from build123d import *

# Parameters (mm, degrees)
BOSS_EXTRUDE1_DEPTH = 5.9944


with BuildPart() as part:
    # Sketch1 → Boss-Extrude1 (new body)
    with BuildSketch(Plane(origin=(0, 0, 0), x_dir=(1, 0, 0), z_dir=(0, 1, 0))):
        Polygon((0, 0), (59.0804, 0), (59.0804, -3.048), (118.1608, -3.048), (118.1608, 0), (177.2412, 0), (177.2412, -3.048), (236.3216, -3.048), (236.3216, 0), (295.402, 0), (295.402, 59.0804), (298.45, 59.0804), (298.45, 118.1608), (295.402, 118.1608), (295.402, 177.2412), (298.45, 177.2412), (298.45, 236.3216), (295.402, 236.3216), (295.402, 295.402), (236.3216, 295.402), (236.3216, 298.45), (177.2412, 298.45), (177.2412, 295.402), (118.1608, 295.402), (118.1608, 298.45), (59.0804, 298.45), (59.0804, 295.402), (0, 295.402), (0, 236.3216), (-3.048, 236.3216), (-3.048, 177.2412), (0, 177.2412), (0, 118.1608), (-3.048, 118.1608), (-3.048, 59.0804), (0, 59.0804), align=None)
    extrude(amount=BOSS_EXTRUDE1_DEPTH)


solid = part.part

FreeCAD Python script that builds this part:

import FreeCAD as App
import Part
import Sketcher
from FreeCAD import Vector
Q = App.Units.Quantity

doc = App.newDocument("Part")
body = doc.addObject("PartDesign::Body", "Body")

# Sketch on XZ plane
sketch1 = body.newObject("Sketcher::SketchObject", "Sketch")
sketch1.AttachmentSupport = (doc.getObject("XZ_Plane"), [""])
sketch1.MapMode = "FlatFace"
sketch1.addGeometry([
    Part.LineSegment(Vector(0, 0, 0), Vector(59.1, 0, 0)),  # 0
    Part.LineSegment(Vector(59.1, 0, 0), Vector(59.1, 3, 0)),  # 1
    Part.LineSegment(Vector(59.1, 3, 0), Vector(118.2, 3, 0)),  # 2
    Part.LineSegment(Vector(118.2, 3, 0), Vector(118.2, 0, 0)),  # 3
    Part.LineSegment(Vector(118.2, 0, 0), Vector(177.2, 0, 0)),  # 4
    Part.LineSegment(Vector(177.2, 0, 0), Vector(177.2, 3, 0)),  # 5
    Part.LineSegment(Vector(177.2, 3, 0), Vector(236.3, 3, 0)),  # 6
    Part.LineSegment(Vector(236.3, 3, 0), Vector(236.3, 0, 0)),  # 7
    Part.LineSegment(Vector(236.3, 0, 0), Vector(295.4, 0, 0)),  # 8
    Part.LineSegment(Vector(295.4, 0, 0), Vector(295.4, -59.1, 0)),  # 9
    Part.LineSegment(Vector(295.4, -59.1, 0), Vector(298.4, -59.1, 0)),  # 10
    Part.LineSegment(Vector(298.4, -59.1, 0), Vector(298.4, -118.2, 0)),  # 11
    Part.LineSegment(Vector(298.4, -118.2, 0), Vector(295.4, -118.2, 0)),  # 12
    Part.LineSegment(Vector(295.4, -118.2, 0), Vector(295.4, -177.2, 0)),  # 13
    Part.LineSegment(Vector(295.4, -177.2, 0), Vector(298.4, -177.2, 0)),  # 14
    Part.LineSegment(Vector(298.4, -177.2, 0), Vector(298.4, -236.3, 0)),  # 15
    Part.LineSegment(Vector(298.4, -236.3, 0), Vector(295.4, -236.3, 0)),  # 16
    Part.LineSegment(Vector(295.4, -236.3, 0), Vector(295.4, -295.4, 0)),  # 17
    Part.LineSegment(Vector(295.4, -295.4, 0), Vector(236.3, -295.4, 0)),  # 18
    Part.LineSegment(Vector(236.3, -295.4, 0), Vector(236.3, -298.4, 0)),  # 19
    Part.LineSegment(Vector(236.3, -298.4, 0), Vector(177.2, -298.4, 0)),  # 20
    Part.LineSegment(Vector(177.2, -298.4, 0), Vector(177.2, -295.4, 0)),  # 21
    Part.LineSegment(Vector(177.2, -295.4, 0), Vector(118.2, -295.4, 0)),  # 22
    Part.LineSegment(Vector(118.2, -295.4, 0), Vector(118.2, -298.4, 0)),  # 23
    Part.LineSegment(Vector(118.2, -298.4, 0), Vector(59.1, -298.4, 0)),  # 24
    Part.LineSegment(Vector(59.1, -298.4, 0), Vector(59.1, -295.4, 0)),  # 25
    Part.LineSegment(Vector(59.1, -295.4, 0), Vector(0, -295.4, 0)),  # 26
    Part.LineSegment(Vector(0, -295.4, 0), Vector(0, -236.3, 0)),  # 27
    Part.LineSegment(Vector(0, -236.3, 0), Vector(-3, -236.3, 0)),  # 28
    Part.LineSegment(Vector(-3, -236.3, 0), Vector(-3, -177.2, 0)),  # 29
    Part.LineSegment(Vector(-3, -177.2, 0), Vector(0, -177.2, 0)),  # 30
    Part.LineSegment(Vector(0, -177.2, 0), Vector(0, -118.2, 0)),  # 31
    Part.LineSegment(Vector(0, -118.2, 0), Vector(-3, -118.2, 0)),  # 32
    Part.LineSegment(Vector(-3, -118.2, 0), Vector(-3, -59.1, 0)),  # 33
    Part.LineSegment(Vector(-3, -59.1, 0), Vector(0, -59.1, 0)),  # 34
    Part.LineSegment(Vector(0, -59.1, 0), Vector(0, 0, 0)),  # 35
], False)
sketch1.addConstraint([
    Sketcher.Constraint("Coincident", 0, 2, 1, 1),
    Sketcher.Constraint("Coincident", 1, 2, 2, 1),
    Sketcher.Constraint("Coincident", 2, 2, 3, 1),
    Sketcher.Constraint("Coincident", 3, 2, 4, 1),
    Sketcher.Constraint("Coincident", 4, 2, 5, 1),
    Sketcher.Constraint("Coincident", 5, 2, 6, 1),
    Sketcher.Constraint("Coincident", 6, 2, 7, 1),
    Sketcher.Constraint("Coincident", 7, 2, 8, 1),
    Sketcher.Constraint("Coincident", 8, 2, 9, 1),
    Sketcher.Constraint("Coincident", 9, 2, 10, 1),
    Sketcher.Constraint("Coincident", 10, 2, 11, 1),
    Sketcher.Constraint("Coincident", 11, 2, 12, 1),
    Sketcher.Constraint("Coincident", 12, 2, 13, 1),
    Sketcher.Constraint("Coincident", 13, 2, 14, 1),
    Sketcher.Constraint("Coincident", 14, 2, 15, 1),
    Sketcher.Constraint("Coincident", 15, 2, 16, 1),
    Sketcher.Constraint("Coincident", 16, 2, 17, 1),
    Sketcher.Constraint("Coincident", 17, 2, 18, 1),
    Sketcher.Constraint("Coincident", 18, 2, 19, 1),
    Sketcher.Constraint("Coincident", 19, 2, 20, 1),
    Sketcher.Constraint("Coincident", 20, 2, 21, 1),
    Sketcher.Constraint("Coincident", 21, 2, 22, 1),
    Sketcher.Constraint("Coincident", 22, 2, 23, 1),
    Sketcher.Constraint("Coincident", 23, 2, 24, 1),
    Sketcher.Constraint("Coincident", 24, 2, 25, 1),
    Sketcher.Constraint("Coincident", 25, 2, 26, 1),
    Sketcher.Constraint("Coincident", 26, 2, 27, 1),
    Sketcher.Constraint("Coincident", 27, 2, 28, 1),
    Sketcher.Constraint("Coincident", 28, 2, 29, 1),
    Sketcher.Constraint("Coincident", 29, 2, 30, 1),
    Sketcher.Constraint("Coincident", 30, 2, 31, 1),
    Sketcher.Constraint("Coincident", 31, 2, 32, 1),
    Sketcher.Constraint("Coincident", 32, 2, 33, 1),
    Sketcher.Constraint("Coincident", 33, 2, 34, 1),
    Sketcher.Constraint("Coincident", 34, 2, 35, 1),
    Sketcher.Constraint("Coincident", 35, 2, 0, 1),
    Sketcher.Constraint("Horizontal", 0),
    Sketcher.Constraint("Vertical", 1),
    Sketcher.Constraint("Horizontal", 2),
    Sketcher.Constraint("Vertical", 3),
    Sketcher.Constraint("Horizontal", 4),
    Sketcher.Constraint("Vertical", 5),
    Sketcher.Constraint("Horizontal", 6),
    Sketcher.Constraint("Vertical", 7),
    Sketcher.Constraint("Horizontal", 8),
    Sketcher.Constraint("Vertical", 9),
    Sketcher.Constraint("Horizontal", 10),
    Sketcher.Constraint("Vertical", 11),
    Sketcher.Constraint("Horizontal", 12),
    Sketcher.Constraint("Vertical", 13),
    Sketcher.Constraint("Horizontal", 14),
    Sketcher.Constraint("Vertical", 15),
    Sketcher.Constraint("Horizontal", 16),
    Sketcher.Constraint("Vertical", 17),
    Sketcher.Constraint("Horizontal", 18),
    Sketcher.Constraint("Vertical", 19),
    Sketcher.Constraint("Horizontal", 20),
    Sketcher.Constraint("Vertical", 21),
    Sketcher.Constraint("Horizontal", 22),
    Sketcher.Constraint("Vertical", 23),
    Sketcher.Constraint("Horizontal", 24),
    Sketcher.Constraint("Vertical", 25),
    Sketcher.Constraint("Horizontal", 26),
    Sketcher.Constraint("Vertical", 27),
    Sketcher.Constraint("Horizontal", 28),
    Sketcher.Constraint("Vertical", 29),
    Sketcher.Constraint("Horizontal", 30),
    Sketcher.Constraint("Vertical", 31),
    Sketcher.Constraint("Horizontal", 32),
    Sketcher.Constraint("Vertical", 33),
    Sketcher.Constraint("Horizontal", 34),
    Sketcher.Constraint("Vertical", 35),
    Sketcher.Constraint("Coincident", 35, 2, -1, 1),
    Sketcher.Constraint("PointOnObject", 3, 2, -1),
    Sketcher.Constraint("PointOnObject", 7, 2, -1),
    Sketcher.Constraint("PointOnObject", 26, 2, -2),
    Sketcher.Constraint("PointOnObject", 30, 2, -2),
    Sketcher.Constraint("Horizontal", 2, 2, 5, 2),
    Sketcher.Constraint("Horizontal", 18, 2, 21, 2),
    Sketcher.Constraint("Horizontal", 20, 2, 23, 2),
    Sketcher.Constraint("Horizontal", 22, 2, 25, 2),
    Sketcher.Constraint("Horizontal", 16, 2, 27, 2),
    Sketcher.Constraint("Horizontal", 14, 2, 29, 2),
    Sketcher.Constraint("Horizontal", 12, 2, 31, 2),
    Sketcher.Constraint("Horizontal", 10, 2, 33, 2),
    Sketcher.Constraint("Vertical", 9, 2, 12, 2),
    Sketcher.Constraint("Vertical", 11, 2, 14, 2),
    Sketcher.Constraint("Vertical", 13, 2, 16, 2),
    Sketcher.Constraint("Vertical", 7, 2, 18, 2),
    Sketcher.Constraint("Vertical", 5, 2, 20, 2),
    Sketcher.Constraint("Vertical", 3, 2, 22, 2),
    Sketcher.Constraint("Vertical", 1, 2, 24, 2),
    Sketcher.Constraint("Vertical", 29, 2, 32, 2),
    Sketcher.Constraint("Equal", 0, 2),
    Sketcher.Constraint("Equal", 2, 4),
    Sketcher.Constraint("Equal", 4, 6),
    Sketcher.Constraint("Equal", 6, 8),
    Sketcher.Constraint("Equal", 16, 28),
    Sketcher.Constraint("Equal", 34, 1),
    Sketcher.Constraint("Equal", 26, 9),
    Sketcher.Constraint("Equal", 9, 11),
    Sketcher.Constraint("Equal", 11, 13),
    Sketcher.Constraint("Equal", 13, 15),
    Sketcher.Constraint("Equal", 15, 17),
    Sketcher.Constraint("Equal", 7, 19),
    Sketcher.Constraint("DistanceX", 10, 1, 10, 2, Q("0.12 in")),
    Sketcher.Constraint("DistanceX", 0, 1, 0, 2, Q("2.326 in")),
])
pad1 = body.newObject("PartDesign::Pad", "Pad")
pad1.Profile = sketch1
pad1.Length = Q("0.236 in")
pad1.Reversed = True

doc.recompute()
